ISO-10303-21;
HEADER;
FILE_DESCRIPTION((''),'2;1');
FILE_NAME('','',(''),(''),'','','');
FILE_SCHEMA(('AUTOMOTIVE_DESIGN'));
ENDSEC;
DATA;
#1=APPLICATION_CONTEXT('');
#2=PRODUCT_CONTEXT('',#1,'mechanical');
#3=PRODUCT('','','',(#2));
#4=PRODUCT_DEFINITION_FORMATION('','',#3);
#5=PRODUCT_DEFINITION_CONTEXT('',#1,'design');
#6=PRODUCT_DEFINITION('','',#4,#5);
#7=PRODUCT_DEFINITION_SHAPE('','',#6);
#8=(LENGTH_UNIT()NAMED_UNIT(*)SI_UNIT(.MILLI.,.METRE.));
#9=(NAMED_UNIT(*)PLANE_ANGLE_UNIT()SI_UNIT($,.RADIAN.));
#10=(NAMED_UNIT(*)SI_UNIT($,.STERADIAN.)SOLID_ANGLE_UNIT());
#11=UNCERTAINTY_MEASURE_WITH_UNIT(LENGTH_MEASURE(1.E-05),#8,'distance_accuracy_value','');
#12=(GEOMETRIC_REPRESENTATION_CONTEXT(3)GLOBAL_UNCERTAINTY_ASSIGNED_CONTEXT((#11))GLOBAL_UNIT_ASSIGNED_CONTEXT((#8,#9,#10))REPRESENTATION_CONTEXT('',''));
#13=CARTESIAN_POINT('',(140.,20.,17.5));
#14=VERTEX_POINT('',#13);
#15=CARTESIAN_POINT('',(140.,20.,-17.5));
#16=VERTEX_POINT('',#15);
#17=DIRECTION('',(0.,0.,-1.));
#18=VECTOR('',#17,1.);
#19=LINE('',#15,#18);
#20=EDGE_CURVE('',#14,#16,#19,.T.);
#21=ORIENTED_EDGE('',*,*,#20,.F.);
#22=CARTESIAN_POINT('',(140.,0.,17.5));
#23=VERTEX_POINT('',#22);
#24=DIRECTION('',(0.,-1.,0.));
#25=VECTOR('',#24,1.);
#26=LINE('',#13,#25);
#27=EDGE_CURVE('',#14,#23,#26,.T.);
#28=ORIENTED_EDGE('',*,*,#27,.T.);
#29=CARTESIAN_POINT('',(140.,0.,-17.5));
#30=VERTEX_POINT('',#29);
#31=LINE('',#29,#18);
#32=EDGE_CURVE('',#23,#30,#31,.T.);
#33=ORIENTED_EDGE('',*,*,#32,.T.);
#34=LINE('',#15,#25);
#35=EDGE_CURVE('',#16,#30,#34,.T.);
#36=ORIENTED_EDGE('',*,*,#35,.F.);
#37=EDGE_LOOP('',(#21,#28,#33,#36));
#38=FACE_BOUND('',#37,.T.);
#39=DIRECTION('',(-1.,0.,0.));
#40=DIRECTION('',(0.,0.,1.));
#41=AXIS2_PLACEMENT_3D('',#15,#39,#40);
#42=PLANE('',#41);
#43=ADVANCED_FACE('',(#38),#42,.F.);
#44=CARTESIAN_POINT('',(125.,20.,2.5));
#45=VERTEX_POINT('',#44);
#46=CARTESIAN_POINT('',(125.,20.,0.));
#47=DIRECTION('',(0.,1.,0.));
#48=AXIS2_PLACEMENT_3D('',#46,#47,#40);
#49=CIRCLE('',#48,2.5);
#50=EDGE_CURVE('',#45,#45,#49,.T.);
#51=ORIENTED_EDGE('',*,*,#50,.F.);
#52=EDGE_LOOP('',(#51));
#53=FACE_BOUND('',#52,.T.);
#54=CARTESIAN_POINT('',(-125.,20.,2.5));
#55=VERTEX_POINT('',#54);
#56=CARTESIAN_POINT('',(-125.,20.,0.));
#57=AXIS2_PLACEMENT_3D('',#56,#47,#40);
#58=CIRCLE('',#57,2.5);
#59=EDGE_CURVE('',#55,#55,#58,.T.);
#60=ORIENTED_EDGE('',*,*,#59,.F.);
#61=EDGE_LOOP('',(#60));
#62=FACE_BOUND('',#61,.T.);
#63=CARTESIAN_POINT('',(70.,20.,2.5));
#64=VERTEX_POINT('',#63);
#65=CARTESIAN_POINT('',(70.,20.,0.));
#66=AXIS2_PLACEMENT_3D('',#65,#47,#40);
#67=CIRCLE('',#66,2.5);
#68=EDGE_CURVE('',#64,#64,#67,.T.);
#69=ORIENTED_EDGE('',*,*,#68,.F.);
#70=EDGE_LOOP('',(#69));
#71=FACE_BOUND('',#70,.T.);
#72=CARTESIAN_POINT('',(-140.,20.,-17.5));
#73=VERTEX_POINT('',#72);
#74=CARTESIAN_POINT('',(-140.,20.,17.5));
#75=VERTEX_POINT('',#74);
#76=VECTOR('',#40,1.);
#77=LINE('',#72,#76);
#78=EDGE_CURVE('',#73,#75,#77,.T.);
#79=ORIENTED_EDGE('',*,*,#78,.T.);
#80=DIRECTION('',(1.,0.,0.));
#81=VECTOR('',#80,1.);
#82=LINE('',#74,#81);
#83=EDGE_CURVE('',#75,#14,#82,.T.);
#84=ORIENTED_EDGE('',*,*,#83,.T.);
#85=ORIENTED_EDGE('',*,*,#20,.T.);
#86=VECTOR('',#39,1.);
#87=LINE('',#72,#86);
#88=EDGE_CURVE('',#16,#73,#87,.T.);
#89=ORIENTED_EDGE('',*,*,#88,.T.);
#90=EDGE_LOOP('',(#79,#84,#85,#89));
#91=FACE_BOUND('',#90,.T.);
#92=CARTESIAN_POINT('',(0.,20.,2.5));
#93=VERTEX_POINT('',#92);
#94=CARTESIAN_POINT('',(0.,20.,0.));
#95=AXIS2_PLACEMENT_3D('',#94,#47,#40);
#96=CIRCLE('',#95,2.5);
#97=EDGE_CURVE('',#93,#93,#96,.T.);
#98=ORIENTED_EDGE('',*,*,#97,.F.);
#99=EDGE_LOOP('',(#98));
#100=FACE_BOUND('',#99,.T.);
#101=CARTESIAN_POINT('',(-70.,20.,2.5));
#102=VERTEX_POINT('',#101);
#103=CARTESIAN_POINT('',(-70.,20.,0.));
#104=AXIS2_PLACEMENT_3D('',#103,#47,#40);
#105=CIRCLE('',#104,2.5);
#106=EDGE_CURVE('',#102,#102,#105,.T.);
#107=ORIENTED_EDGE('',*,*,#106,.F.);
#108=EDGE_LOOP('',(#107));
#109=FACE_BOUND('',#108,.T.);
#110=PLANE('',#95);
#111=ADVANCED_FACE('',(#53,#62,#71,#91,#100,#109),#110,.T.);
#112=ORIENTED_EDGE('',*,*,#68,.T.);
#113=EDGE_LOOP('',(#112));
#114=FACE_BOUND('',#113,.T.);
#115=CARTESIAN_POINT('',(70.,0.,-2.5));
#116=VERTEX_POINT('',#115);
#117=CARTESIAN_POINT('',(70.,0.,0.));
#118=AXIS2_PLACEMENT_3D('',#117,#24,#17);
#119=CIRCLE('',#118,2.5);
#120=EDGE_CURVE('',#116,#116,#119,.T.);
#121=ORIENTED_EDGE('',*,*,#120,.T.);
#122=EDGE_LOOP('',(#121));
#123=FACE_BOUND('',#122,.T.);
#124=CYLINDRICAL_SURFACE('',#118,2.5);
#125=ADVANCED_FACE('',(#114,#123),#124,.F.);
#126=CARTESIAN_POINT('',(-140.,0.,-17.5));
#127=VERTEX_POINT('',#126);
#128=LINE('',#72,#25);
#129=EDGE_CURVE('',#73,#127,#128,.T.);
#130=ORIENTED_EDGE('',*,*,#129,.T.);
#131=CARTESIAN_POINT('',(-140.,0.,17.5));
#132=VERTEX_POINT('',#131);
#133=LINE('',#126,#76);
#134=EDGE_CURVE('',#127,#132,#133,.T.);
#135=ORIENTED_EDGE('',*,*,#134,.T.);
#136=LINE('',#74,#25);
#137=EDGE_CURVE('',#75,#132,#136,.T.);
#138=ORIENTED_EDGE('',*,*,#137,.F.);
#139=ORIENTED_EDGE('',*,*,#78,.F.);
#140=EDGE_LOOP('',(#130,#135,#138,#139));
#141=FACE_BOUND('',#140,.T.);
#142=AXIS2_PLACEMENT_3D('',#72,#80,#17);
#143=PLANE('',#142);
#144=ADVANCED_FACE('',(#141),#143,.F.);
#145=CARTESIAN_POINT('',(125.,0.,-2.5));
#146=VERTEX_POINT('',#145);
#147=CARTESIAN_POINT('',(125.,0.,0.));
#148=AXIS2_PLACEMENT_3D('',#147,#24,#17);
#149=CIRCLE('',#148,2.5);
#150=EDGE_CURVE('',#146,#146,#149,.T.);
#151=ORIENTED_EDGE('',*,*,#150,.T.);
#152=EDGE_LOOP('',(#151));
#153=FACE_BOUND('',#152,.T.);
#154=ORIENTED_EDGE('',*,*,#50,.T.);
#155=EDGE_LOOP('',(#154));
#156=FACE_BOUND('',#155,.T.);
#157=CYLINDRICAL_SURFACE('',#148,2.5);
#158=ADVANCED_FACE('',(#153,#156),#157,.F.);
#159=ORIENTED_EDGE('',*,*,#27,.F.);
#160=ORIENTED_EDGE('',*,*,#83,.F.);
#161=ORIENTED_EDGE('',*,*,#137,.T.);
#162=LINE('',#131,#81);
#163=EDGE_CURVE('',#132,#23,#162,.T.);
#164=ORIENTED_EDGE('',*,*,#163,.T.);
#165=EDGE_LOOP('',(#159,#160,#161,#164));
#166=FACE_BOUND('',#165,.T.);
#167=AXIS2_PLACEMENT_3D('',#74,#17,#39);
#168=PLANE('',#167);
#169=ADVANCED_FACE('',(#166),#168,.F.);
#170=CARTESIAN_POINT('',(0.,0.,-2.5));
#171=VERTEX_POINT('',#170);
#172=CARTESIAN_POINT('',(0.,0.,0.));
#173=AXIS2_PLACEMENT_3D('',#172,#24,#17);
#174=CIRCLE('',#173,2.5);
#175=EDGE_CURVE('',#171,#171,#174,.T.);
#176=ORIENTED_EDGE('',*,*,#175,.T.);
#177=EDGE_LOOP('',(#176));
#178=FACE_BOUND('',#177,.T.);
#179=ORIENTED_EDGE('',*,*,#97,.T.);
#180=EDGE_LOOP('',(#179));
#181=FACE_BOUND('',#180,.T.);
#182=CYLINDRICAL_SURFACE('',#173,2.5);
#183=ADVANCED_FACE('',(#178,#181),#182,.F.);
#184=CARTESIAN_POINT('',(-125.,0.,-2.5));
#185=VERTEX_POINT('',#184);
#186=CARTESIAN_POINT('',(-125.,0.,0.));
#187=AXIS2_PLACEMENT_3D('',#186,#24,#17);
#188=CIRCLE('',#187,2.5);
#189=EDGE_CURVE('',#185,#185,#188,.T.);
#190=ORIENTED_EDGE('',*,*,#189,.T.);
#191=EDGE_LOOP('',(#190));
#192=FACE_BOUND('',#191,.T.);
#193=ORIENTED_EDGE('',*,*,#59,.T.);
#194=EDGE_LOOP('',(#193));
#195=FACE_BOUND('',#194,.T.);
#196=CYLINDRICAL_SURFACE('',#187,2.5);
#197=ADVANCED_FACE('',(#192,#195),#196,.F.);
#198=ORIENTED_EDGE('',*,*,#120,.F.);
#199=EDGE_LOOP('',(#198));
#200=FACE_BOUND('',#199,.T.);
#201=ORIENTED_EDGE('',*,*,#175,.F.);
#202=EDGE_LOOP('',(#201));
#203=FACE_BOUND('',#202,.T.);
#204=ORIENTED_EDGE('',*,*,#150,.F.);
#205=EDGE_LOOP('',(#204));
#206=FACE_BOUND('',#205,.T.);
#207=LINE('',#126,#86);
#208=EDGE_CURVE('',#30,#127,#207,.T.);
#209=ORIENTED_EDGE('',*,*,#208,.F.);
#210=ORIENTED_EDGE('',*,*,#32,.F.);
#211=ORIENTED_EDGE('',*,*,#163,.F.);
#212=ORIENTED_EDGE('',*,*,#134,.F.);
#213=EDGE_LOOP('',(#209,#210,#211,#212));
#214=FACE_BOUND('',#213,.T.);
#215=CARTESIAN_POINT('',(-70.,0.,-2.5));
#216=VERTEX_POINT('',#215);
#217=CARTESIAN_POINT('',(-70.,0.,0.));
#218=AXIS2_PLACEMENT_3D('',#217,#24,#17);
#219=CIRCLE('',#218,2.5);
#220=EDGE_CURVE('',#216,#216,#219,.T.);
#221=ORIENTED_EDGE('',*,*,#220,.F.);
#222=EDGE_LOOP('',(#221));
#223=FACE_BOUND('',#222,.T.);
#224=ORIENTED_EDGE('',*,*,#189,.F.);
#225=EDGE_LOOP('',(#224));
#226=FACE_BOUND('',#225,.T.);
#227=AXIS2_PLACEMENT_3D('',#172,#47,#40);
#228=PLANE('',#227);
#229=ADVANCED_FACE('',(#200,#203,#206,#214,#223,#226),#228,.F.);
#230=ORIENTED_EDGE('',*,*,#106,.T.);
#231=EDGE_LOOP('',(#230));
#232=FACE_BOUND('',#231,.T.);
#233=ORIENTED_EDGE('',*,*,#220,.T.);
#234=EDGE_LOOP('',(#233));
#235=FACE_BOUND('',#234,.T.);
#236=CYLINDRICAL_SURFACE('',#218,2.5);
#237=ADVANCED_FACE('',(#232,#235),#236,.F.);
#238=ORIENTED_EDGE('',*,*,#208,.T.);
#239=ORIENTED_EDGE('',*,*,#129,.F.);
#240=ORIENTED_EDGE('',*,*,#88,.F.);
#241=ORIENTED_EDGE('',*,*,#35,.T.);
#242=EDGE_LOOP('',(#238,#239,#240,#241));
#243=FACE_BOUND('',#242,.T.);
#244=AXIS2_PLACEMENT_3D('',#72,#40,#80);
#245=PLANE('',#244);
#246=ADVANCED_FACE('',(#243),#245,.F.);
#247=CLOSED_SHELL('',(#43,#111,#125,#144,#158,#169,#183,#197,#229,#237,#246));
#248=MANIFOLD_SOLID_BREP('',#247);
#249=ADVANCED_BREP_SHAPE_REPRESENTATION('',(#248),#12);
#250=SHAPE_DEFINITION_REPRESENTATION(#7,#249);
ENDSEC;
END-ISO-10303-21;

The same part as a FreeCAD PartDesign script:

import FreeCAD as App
import Part
import Sketcher

doc = App.newDocument("Part")
body = doc.addObject("PartDesign::Body", "Body")

sketch1 = doc.addObject("Sketcher::SketchObject", "Sketch")
body.addObject(sketch1)
sketch1.AttachmentSupport = (doc.XZ_Plane, [""])
sketch1.MapMode = "FlatFace"
sketch1.addGeometry([
    Part.LineSegment(App.Vector(-140, -18, 0), App.Vector(-140, 18, 0)),
    Part.LineSegment(App.Vector(-140, 18, 0), App.Vector(140, 18, 0)),
    Part.LineSegment(App.Vector(140, 18, 0), App.Vector(140, -18, 0)),
    Part.LineSegment(App.Vector(140, -18, 0), App.Vector(-140, -18, 0)),
], False)
sketch1.addConstraint([
    Sketcher.Constraint("Coincident", 0, 2, 1, 1),
    Sketcher.Constraint("Coincident", 1, 2, 2, 1),
    Sketcher.Constraint("Coincident", 2, 2, 3, 1),
    Sketcher.Constraint("Coincident", 3, 2, 0, 1),
    Sketcher.Constraint("Vertical", 0),
    Sketcher.Constraint("Horizontal", 1),
    Sketcher.Constraint("Vertical", 2),
    Sketcher.Constraint("Horizontal", 3),
    Sketcher.Constraint("Symmetric", 0, 2, 2, 2, -1, 1),
    Sketcher.Constraint("DistanceX", 1, 1, 1, 2, 280.0),
    Sketcher.Constraint("DistanceY", 0, 1, 0, 2, 35.0),
])
pad1 = doc.addObject("PartDesign::Pad", "Pad")
body.addObject(pad1)
pad1.Profile = sketch1
pad1.Length = 20
pad1.Reversed = True

sketch2 = doc.addObject("Sketcher::SketchObject", "Sketch001")
body.addObject(sketch2)
sketch2.AttachmentSupport = (doc.XZ_Plane, [""])
sketch2.MapMode = "FlatFace"
sketch2.addGeometry([
    Part.Circle(App.Vector(125, 0, 0), App.Vector(0, 0, 1), 2.5),
    Part.Circle(App.Vector(70, 0, 0), App.Vector(0, 0, 1), 2.5),
    Part.Circle(App.Vector(0, 0, 0), App.Vector(0, 0, 1), 2.5),
    Part.Circle(App.Vector(-70, 0, 0), App.Vector(0, 0, 1), 2.5),
    Part.Circle(App.Vector(-125, 0, 0), App.Vector(0, 0, 1), 2.5),
], False)
sketch2.addConstraint([
    Sketcher.Constraint("Coincident", 2, 3, -1, 1),
    Sketcher.Constraint("Equal", 0, 1),
    Sketcher.Constraint("Equal", 1, 2),
    Sketcher.Constraint("Equal", 2, 3),
    Sketcher.Constraint("Equal", 3, 4),
    Sketcher.Constraint("Symmetric", 1, 3, 3, 3, -1, 1),
    Sketcher.Constraint("Symmetric", 0, 3, 4, 3, -1, 1),
    Sketcher.Constraint("PointOnObject", 0, 3, -1),
    Sketcher.Constraint("PointOnObject", 1, 3, -1),
    Sketcher.Constraint("Diameter", 0, 5.0),
    Sketcher.Constraint("DistanceX", -1, 1, 0, 3, 125.0),
    Sketcher.Constraint("DistanceX", -1, 1, 1, 3, 70.0),
])
doc.recompute()
hole = doc.addObject("PartDesign::Hole", "Hole")
body.addObject(hole)
hole.Profile = sketch2
hole.ThreadType = "None"
hole.Diameter = 5
hole.DepthType = "Dimension"
hole.Depth = 29
hole.DrillPoint = "Angled"
hole.DrillPointAngle = 118

doc.recompute()
